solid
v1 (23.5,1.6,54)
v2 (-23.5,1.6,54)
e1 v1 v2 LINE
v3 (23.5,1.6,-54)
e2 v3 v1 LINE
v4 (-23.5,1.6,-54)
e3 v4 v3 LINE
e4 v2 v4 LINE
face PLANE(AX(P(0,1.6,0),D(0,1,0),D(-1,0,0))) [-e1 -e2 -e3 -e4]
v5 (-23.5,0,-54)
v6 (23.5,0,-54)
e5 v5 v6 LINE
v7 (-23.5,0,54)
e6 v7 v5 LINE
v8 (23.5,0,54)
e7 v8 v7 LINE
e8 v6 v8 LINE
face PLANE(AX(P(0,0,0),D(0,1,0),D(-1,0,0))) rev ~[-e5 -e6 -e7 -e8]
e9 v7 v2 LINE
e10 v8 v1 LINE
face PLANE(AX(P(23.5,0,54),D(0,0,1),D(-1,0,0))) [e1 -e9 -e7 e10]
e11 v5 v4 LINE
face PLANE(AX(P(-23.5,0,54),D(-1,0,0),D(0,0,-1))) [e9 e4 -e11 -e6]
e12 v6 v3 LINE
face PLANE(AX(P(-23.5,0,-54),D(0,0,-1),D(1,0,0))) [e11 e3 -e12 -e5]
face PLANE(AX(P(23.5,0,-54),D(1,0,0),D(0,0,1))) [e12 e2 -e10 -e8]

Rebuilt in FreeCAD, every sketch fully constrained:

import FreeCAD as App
import Part
import Sketcher
from FreeCAD import Vector

doc = App.newDocument("Part")
params = doc.addObject("Spreadsheet::Sheet", "Params")
for row, (alias, value) in enumerate([
    ("sketch1_width", "47 mm"),
    ("sketch1_height", "108 mm"),
    ("pad1_length", "1.6 mm"),
], start=1):
    params.set(f"A{row}", alias)
    params.set(f"B{row}", "=" + value)
    params.setAlias(f"B{row}", alias)

body = doc.addObject("PartDesign::Body", "Body")

sketch1 = body.newObject("Sketcher::SketchObject", "Sketch")
sketch1.AttachmentSupport = (doc.getObject("XZ_Plane"), [""])
sketch1.MapMode = "FlatFace"
sketch1.addGeometry(Part.LineSegment(Vector(-24, 54, 0), Vector(24, 54, 0)), False)
sketch1.addGeometry(Part.LineSegment(Vector(24, 54, 0), Vector(24, -54, 0)), False)
sketch1.addGeometry(Part.LineSegment(Vector(24, -54, 0), Vector(-24, -54, 0)), False)
sketch1.addGeometry(Part.LineSegment(Vector(-24, -54, 0), Vector(-24, 54, 0)), False)
sketch1.addConstraint(Sketcher.Constraint("Coincident", 0, 2, 1, 1))
sketch1.addConstraint(Sketcher.Constraint("Coincident", 1, 2, 2, 1))
sketch1.addConstraint(Sketcher.Constraint("Coincident", 2, 2, 3, 1))
sketch1.addConstraint(Sketcher.Constraint("Coincident", 3, 2, 0, 1))
sketch1.addConstraint(Sketcher.Constraint("Horizontal", 0))
sketch1.addConstraint(Sketcher.Constraint("Vertical", 1))
sketch1.addConstraint(Sketcher.Constraint("Horizontal", 2))
sketch1.addConstraint(Sketcher.Constraint("Vertical", 3))
sketch1.addConstraint(Sketcher.Constraint("Symmetric", 0, 2, 2, 2, -1, 1))
sketch1.addConstraint(Sketcher.Constraint("DistanceX", 0, 1, 0, 2, 47.0))
sketch1.addConstraint(Sketcher.Constraint("DistanceY", 1, 2, 1, 1, 108.0))
sketch1.setExpression("Constraints[9]", "Params.sketch1_width")
sketch1.setExpression("Constraints[10]", "Params.sketch1_height")
pad1 = body.newObject("PartDesign::Pad", "Pad")
pad1.Profile = sketch1
pad1.setExpression("Length", "Params.pad1_length")
pad1.Reversed = True

doc.recompute()
